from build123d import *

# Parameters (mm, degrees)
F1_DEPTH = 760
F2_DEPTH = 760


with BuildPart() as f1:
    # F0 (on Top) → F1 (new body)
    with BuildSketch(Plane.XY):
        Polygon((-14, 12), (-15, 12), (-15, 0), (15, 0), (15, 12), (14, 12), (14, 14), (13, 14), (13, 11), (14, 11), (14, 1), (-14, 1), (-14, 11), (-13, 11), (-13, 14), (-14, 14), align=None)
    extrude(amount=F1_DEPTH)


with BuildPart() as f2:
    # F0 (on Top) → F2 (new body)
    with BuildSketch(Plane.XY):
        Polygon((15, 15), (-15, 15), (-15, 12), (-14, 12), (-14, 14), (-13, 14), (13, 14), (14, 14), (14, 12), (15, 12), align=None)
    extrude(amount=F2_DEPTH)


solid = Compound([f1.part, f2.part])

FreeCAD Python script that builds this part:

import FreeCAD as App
import Part
import Sketcher
from FreeCAD import Vector

doc = App.newDocument("Part")
params = doc.addObject("Spreadsheet::Sheet", "Params")
for row, (alias, value) in enumerate([
    ("sketch1_width", "1 mm"),
    ("sketch1_width2", "30 mm"),
    ("sketch1_height", "12 mm"),
    ("sketch1_height2", "2 mm"),
    ("sketch1_height3", "3 mm"),
    ("pad1_length", "760 mm"),
    ("sketch2_width", "30 mm"),
    ("sketch2_width2", "1 mm"),
    ("sketch2_height", "3 mm"),
    ("sketch2_height2", "2 mm"),
    ("pad2_length", "760 mm"),
], start=1):
    params.set(f"A{row}", alias)
    params.set(f"B{row}", "=" + value)
    params.setAlias(f"B{row}", alias)

body = doc.addObject("PartDesign::Body", "Body")

sketch1 = doc.addObject("Sketcher::SketchObject", "Sketch")
body.addObject(sketch1)
sketch1.AttachmentSupport = (doc.XY_Plane, [""])
sketch1.MapMode = "FlatFace"
sketch1.addGeometry(Part.LineSegment(Vector(-14, 12, 0), Vector(-15, 12, 0)), False)
sketch1.addGeometry(Part.LineSegment(Vector(-15, 12, 0), Vector(-15, 0, 0)), False)
sketch1.addGeometry(Part.LineSegment(Vector(-15, 0, 0), Vector(15, 0, 0)), False)
sketch1.addGeometry(Part.LineSegment(Vector(15, 0, 0), Vector(15, 12, 0)), False)
sketch1.addGeometry(Part.LineSegment(Vector(15, 12, 0), Vector(14, 12, 0)), False)
sketch1.addGeometry(Part.LineSegment(Vector(14, 12, 0), Vector(14, 14, 0)), False)
sketch1.addGeometry(Part.LineSegment(Vector(14, 14, 0), Vector(13, 14, 0)), False)
sketch1.addGeometry(Part.LineSegment(Vector(13, 14, 0), Vector(13, 11, 0)), False)
sketch1.addGeometry(Part.LineSegment(Vector(13, 11, 0), Vector(14, 11, 0)), False)
sketch1.addGeometry(Part.LineSegment(Vector(14, 11, 0), Vector(14, 1, 0)), False)
sketch1.addGeometry(Part.LineSegment(Vector(14, 1, 0), Vector(-14, 1, 0)), False)
sketch1.addGeometry(Part.LineSegment(Vector(-14, 1, 0), Vector(-14, 11, 0)), False)
sketch1.addGeometry(Part.LineSegment(Vector(-14, 11, 0), Vector(-13, 11, 0)), False)
sketch1.addGeometry(Part.LineSegment(Vector(-13, 11, 0), Vector(-13, 14, 0)), False)
sketch1.addGeometry(Part.LineSegment(Vector(-13, 14, 0), Vector(-14, 14, 0)), False)
sketch1.addGeometry(Part.LineSegment(Vector(-14, 14, 0), Vector(-14, 12, 0)), False)
sketch1.addConstraint(Sketcher.Constraint("Coincident", 0, 2, 1, 1))
sketch1.addConstraint(Sketcher.Constraint("Coincident", 1, 2, 2, 1))
sketch1.addConstraint(Sketcher.Constraint("Coincident", 2, 2, 3, 1))
sketch1.addConstraint(Sketcher.Constraint("Coincident", 3, 2, 4, 1))
sketch1.addConstraint(Sketcher.Constraint("Coincident", 4, 2, 5, 1))
sketch1.addConstraint(Sketcher.Constraint("Coincident", 5, 2, 6, 1))
sketch1.addConstraint(Sketcher.Constraint("Coincident", 6, 2, 7, 1))
sketch1.addConstraint(Sketcher.Constraint("Coincident", 7, 2, 8, 1))
sketch1.addConstraint(Sketcher.Constraint("Coincident", 8, 2, 9, 1))
sketch1.addConstraint(Sketcher.Constraint("Coincident", 9, 2, 10, 1))
sketch1.addConstraint(Sketcher.Constraint("Coincident", 10, 2, 11, 1))
sketch1.addConstraint(Sketcher.Constraint("Coincident", 11, 2, 12, 1))
sketch1.addConstraint(Sketcher.Constraint("Coincident", 12, 2, 13, 1))
sketch1.addConstraint(Sketcher.Constraint("Coincident", 13, 2, 14, 1))
sketch1.addConstraint(Sketcher.Constraint("Coincident", 14, 2, 15, 1))
sketch1.addConstraint(Sketcher.Constraint("Coincident", 15, 2, 0, 1))
sketch1.addConstraint(Sketcher.Constraint("Horizontal", 0))
sketch1.addConstraint(Sketcher.Constraint("Vertical", 1))
sketch1.addConstraint(Sketcher.Constraint("Horizontal", 2))
sketch1.addConstraint(Sketcher.Constraint("Vertical", 3))
sketch1.addConstraint(Sketcher.Constraint("Horizontal", 4))
sketch1.addConstraint(Sketcher.Constraint("Vertical", 5))
sketch1.addConstraint(Sketcher.Constraint("Horizontal", 6))
sketch1.addConstraint(Sketcher.Constraint("Vertical", 7))
sketch1.addConstraint(Sketcher.Constraint("Horizontal", 8))
sketch1.addConstraint(Sketcher.Constraint("Vertical", 9))
sketch1.addConstraint(Sketcher.Constraint("Horizontal", 10))
sketch1.addConstraint(Sketcher.Constraint("Vertical", 11))
sketch1.addConstraint(Sketcher.Constraint("Horizontal", 12))
sketch1.addConstraint(Sketcher.Constraint("Vertical", 13))
sketch1.addConstraint(Sketcher.Constraint("Horizontal", 14))
sketch1.addConstraint(Sketcher.Constraint("Vertical", 15))
sketch1.addConstraint(Sketcher.Constraint("Symmetric", 1, 2, 2, 2, -1, 1))
sketch1.addConstraint(Sketcher.Constraint("Symmetric", 8, 2, 11, 2, -2))
sketch1.addConstraint(Sketcher.Constraint("Symmetric", 6, 2, 13, 2, -2))
sketch1.addConstraint(Sketcher.Constraint("Symmetric", 4, 2, 15, 2, -2))
sketch1.addConstraint(Sketcher.Constraint("Vertical", 5, 2, 8, 2))
sketch1.addConstraint(Sketcher.Constraint("Equal", 4, 6))
sketch1.addConstraint(Sketcher.Constraint("DistanceX", 0, 2, 0, 1, 1.0))
sketch1.addConstraint(Sketcher.Constraint("DistanceX", 2, 1, 2, 2, 30.0))
sketch1.addConstraint(Sketcher.Constraint("DistanceY", 1, 2, 1, 1, 12.0))
sketch1.addConstraint(Sketcher.Constraint("DistanceY", 5, 1, 5, 2, 2.0))
sketch1.addConstraint(Sketcher.Constraint("DistanceY", 7, 2, 7, 1, 3.0))
sketch1.addConstraint(Sketcher.Constraint("DistanceY", 9, 2, 9, 1, 10.0))
sketch1.setExpression("Constraints[38]", "Params.sketch1_width")
sketch1.setExpression("Constraints[39]", "Params.sketch1_width2")
sketch1.setExpression("Constraints[40]", "Params.sketch1_height")
sketch1.setExpression("Constraints[41]", "Params.sketch1_height2")
sketch1.setExpression("Constraints[42]", "Params.sketch1_height3")
pad1 = doc.addObject("PartDesign::Pad", "Pad")
body.addObject(pad1)
pad1.Profile = sketch1
pad1.setExpression("Length", "Params.pad1_length")
body2 = doc.addObject("PartDesign::Body", "Body001")

sketch2 = doc.addObject("Sketcher::SketchObject", "Sketch001")
body2.addObject(sketch2)
sketch2.AttachmentSupport = (doc.getObject("XY_Plane001"), [""])
sketch2.MapMode = "FlatFace"
sketch2.addGeometry(Part.LineSegment(Vector(15, 15, 0), Vector(-15, 15, 0)), False)
sketch2.addGeometry(Part.LineSegment(Vector(-15, 15, 0), Vector(-15, 12, 0)), False)
sketch2.addGeometry(Part.LineSegment(Vector(-15, 12, 0), Vector(-14, 12, 0)), False)
sketch2.addGeometry(Part.LineSegment(Vector(-14, 12, 0), Vector(-14, 14, 0)), False)
sketch2.addGeometry(Part.LineSegment(Vector(-14, 14, 0), Vector(14, 14, 0)), False)
sketch2.addGeometry(Part.LineSegment(Vector(14, 14, 0), Vector(14, 12, 0)), False)
sketch2.addGeometry(Part.LineSegment(Vector(14, 12, 0), Vector(15, 12, 0)), False)
sketch2.addGeometry(Part.LineSegment(Vector(15, 12, 0), Vector(15, 15, 0)), False)
sketch2.addConstraint(Sketcher.Constraint("Coincident", 0, 2, 1, 1))
sketch2.addConstraint(Sketcher.Constraint("Coincident", 1, 2, 2, 1))
sketch2.addConstraint(Sketcher.Constraint("Coincident", 2, 2, 3, 1))
sketch2.addConstraint(Sketcher.Constraint("Coincident", 3, 2, 4, 1))
sketch2.addConstraint(Sketcher.Constraint("Coincident", 4, 2, 5, 1))
sketch2.addConstraint(Sketcher.Constraint("Coincident", 5, 2, 6, 1))
sketch2.addConstraint(Sketcher.Constraint("Coincident", 6, 2, 7, 1))
sketch2.addConstraint(Sketcher.Constraint("Coincident", 7, 2, 0, 1))
sketch2.addConstraint(Sketcher.Constraint("Horizontal", 0))
sketch2.addConstraint(Sketcher.Constraint("Vertical", 1))
sketch2.addConstraint(Sketcher.Constraint("Horizontal", 2))
sketch2.addConstraint(Sketcher.Constraint("Vertical", 3))
sketch2.addConstraint(Sketcher.Constraint("Horizontal", 4))
sketch2.addConstraint(Sketcher.Constraint("Vertical", 5))
sketch2.addConstraint(Sketcher.Constraint("Horizontal", 6))
sketch2.addConstraint(Sketcher.Constraint("Vertical", 7))
sketch2.addConstraint(Sketcher.Constraint("Symmetric", 2, 2, 5, 2, -2))
sketch2.addConstraint(Sketcher.Constraint("Equal", 2, 6))
sketch2.addConstraint(Sketcher.Constraint("DistanceX", 0, 2, 0, 1, 30.0))
sketch2.addConstraint(Sketcher.Constraint("DistanceX", 2, 1, 2, 2, 1.0))
sketch2.addConstraint(Sketcher.Constraint("DistanceY", 1, 2, 1, 1, 3.0))
sketch2.addConstraint(Sketcher.Constraint("DistanceY", 3, 1, 3, 2, 2.0))
sketch2.addConstraint(Sketcher.Constraint("DistanceY", -1, 1, 0, 2, 15.0))
sketch2.setExpression("Constraints[18]", "Params.sketch2_width")
sketch2.setExpression("Constraints[19]", "Params.sketch2_width2")
sketch2.setExpression("Constraints[20]", "Params.sketch2_height")
sketch2.setExpression("Constraints[21]", "Params.sketch2_height2")
pad2 = doc.addObject("PartDesign::Pad", "Pad001")
body2.addObject(pad2)
pad2.Profile = sketch2
pad2.setExpression("Length", "Params.pad2_length")

doc.recompute()
